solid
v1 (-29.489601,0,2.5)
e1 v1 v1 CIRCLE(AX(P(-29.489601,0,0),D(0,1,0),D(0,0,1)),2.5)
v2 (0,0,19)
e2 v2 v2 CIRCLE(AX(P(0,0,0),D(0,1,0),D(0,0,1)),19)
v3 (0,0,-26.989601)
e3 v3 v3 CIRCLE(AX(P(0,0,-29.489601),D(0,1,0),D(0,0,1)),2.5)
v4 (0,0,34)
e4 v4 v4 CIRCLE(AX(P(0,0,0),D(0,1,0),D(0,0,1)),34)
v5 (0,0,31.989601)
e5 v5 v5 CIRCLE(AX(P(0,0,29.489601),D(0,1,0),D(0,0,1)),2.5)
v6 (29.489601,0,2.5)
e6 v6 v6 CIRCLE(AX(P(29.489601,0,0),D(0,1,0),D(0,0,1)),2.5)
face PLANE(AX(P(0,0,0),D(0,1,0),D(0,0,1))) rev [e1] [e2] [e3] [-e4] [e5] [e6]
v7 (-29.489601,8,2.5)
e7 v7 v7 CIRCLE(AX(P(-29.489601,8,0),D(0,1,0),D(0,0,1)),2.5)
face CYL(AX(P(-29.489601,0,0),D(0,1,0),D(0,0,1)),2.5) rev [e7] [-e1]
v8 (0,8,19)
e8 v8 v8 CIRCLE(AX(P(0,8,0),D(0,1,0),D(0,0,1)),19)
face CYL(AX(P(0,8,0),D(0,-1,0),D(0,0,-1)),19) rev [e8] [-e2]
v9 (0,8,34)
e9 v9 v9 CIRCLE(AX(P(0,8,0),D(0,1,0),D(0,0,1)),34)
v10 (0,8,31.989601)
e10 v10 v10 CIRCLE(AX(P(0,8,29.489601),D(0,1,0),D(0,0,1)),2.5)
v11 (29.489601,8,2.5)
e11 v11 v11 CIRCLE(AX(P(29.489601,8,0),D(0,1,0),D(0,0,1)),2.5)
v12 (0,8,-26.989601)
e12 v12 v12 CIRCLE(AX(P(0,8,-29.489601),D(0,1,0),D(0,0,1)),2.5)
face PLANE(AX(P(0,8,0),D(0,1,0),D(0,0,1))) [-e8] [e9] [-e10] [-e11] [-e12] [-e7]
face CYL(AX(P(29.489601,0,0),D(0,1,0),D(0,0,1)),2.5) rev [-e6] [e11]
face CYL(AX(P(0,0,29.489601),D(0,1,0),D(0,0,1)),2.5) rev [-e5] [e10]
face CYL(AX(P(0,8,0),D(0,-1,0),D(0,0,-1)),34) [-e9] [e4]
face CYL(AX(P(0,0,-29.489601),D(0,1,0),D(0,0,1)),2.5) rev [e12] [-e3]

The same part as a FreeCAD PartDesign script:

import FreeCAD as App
import Part
import Sketcher

V = App.Vector
Q = App.Units.Quantity

doc = App.newDocument("Part")
body = doc.addObject("PartDesign::Body", "Body")

# Sketch on XZ plane
sketch1 = doc.addObject("Sketcher::SketchObject", "Sketch")
body.addObject(sketch1)
sketch1.AttachmentSupport = (doc.XZ_Plane, [""])
sketch1.MapMode = "FlatFace"
sketch1.addGeometry(Part.Circle(V(0, 0, 0), V(0, 0, 1), 34), False)
sketch1.addGeometry(Part.Circle(V(0, 0, 0), V(0, 0, 1), 19), False)
sketch1.addConstraint(Sketcher.Constraint("Coincident", 0, 3, -1, 1))
sketch1.addConstraint(Sketcher.Constraint("Coincident", 1, 3, -1, 1))
sketch1.addConstraint(Sketcher.Constraint("Diameter", 0, Q("68 mm")))
sketch1.addConstraint(Sketcher.Constraint("Diameter", 1, Q("38 mm")))
pad1 = doc.addObject("PartDesign::Pad", "Pad")
body.addObject(pad1)
pad1.Profile = sketch1
pad1.Length = 8
pad1.Reversed = True

# Sketch on XZ plane
sketch2 = doc.addObject("Sketcher::SketchObject", "Sketch001")
body.addObject(sketch2)
sketch2.AttachmentSupport = (doc.XZ_Plane, [""])
sketch2.MapMode = "FlatFace"
sketch2.AttachmentOffset = App.Placement(V(0, 0, -8), App.Rotation())
sketch2.addGeometry(Part.Circle(V(0, -29.489601, 0), V(0, 0, 1), 2.5), False)
sketch2.addGeometry(Part.Circle(V(29.489601, 0, 0), V(0, 0, 1), 2.5), False)
sketch2.addGeometry(Part.Circle(V(0, 29.489601, 0), V(0, 0, 1), 2.5), False)
sketch2.addGeometry(Part.Circle(V(-29.489601, 0, 0), V(0, 0, 1), 2.5), False)
sketch2.addConstraint(Sketcher.Constraint("Equal", 0, 1))
sketch2.addConstraint(Sketcher.Constraint("Equal", 1, 2))
sketch2.addConstraint(Sketcher.Constraint("Equal", 2, 3))
sketch2.addConstraint(Sketcher.Constraint("Symmetric", 0, 3, 2, 3, -1, 1))
sketch2.addConstraint(Sketcher.Constraint("Symmetric", 1, 3, 3, 3, -1, 1))
sketch2.addConstraint(Sketcher.Constraint("PointOnObject", 0, 3, -2))
sketch2.addConstraint(Sketcher.Constraint("PointOnObject", 1, 3, -1))
sketch2.addConstraint(Sketcher.Constraint("Diameter", 0, Q("5 mm")))
sketch2.addConstraint(Sketcher.Constraint("DistanceY", 0, 3, -1, 1, Q("29.489601 mm")))
sketch2.addConstraint(Sketcher.Constraint("DistanceX", -1, 1, 1, 3, Q("29.489601 mm")))
pocket1 = doc.addObject("PartDesign::Pocket", "Pocket")
body.addObject(pocket1)
pocket1.Profile = sketch2
pocket1.Type = "ThroughAll"
pocket1.Reversed = True

doc.recompute()
